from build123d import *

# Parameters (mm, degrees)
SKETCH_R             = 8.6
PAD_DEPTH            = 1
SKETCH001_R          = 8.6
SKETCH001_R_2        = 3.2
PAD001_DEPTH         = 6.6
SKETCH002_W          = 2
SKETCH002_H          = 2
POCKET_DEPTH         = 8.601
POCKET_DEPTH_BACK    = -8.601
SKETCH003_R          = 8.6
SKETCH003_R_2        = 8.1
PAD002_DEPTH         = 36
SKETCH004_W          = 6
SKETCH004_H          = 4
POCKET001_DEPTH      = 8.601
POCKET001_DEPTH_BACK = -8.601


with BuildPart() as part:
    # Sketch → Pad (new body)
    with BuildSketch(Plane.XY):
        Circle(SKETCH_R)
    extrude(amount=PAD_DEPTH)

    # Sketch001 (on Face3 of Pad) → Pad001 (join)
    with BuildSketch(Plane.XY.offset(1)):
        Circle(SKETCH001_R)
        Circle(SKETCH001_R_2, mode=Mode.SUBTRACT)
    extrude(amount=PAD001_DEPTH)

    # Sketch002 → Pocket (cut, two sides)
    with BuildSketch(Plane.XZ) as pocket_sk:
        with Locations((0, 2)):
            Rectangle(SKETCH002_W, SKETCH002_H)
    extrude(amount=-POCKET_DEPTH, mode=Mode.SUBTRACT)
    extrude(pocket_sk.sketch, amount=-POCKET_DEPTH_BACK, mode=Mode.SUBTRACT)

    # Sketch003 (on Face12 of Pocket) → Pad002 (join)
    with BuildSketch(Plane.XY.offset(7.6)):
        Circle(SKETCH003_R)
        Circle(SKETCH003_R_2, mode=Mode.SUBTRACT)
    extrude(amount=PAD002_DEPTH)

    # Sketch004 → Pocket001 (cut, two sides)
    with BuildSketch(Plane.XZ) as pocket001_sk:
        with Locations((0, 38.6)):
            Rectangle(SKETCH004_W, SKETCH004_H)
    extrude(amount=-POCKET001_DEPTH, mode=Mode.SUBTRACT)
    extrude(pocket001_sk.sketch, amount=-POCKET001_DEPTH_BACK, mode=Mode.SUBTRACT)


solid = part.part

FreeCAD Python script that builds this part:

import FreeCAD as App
import Part
import Sketcher
from FreeCAD import Vector
Q = App.Units.Quantity


def add_polygon(sketch, points):
    """Adds a closed chain of lines whose ends are joined by coincident constraints."""
    first, n = sketch.GeometryCount, len(points)
    for a, b in zip(points, points[1:] + points[:1]):
        sketch.addGeometry(Part.LineSegment(App.Vector(*a, 0), App.Vector(*b, 0)), False)
    for i in range(n):
        sketch.addConstraint(Sketcher.Constraint("Coincident", first + i, 2, first + (i + 1) % n, 1))

doc = App.newDocument("Part")
body = doc.addObject("PartDesign::Body", "Body")

# Sketch on XY plane
sketch1 = doc.addObject("Sketcher::SketchObject", "Sketch")
body.addObject(sketch1)
sketch1.AttachmentSupport = (doc.XY_Plane, [""])
sketch1.MapMode = "FlatFace"
sketch1.addGeometry(Part.Circle(Vector(0, 0, 0), Vector(0, 0, 1), 9), False)
sketch1.addConstraint([
    Sketcher.Constraint("Coincident", 0, 3, -1, 1),
    Sketcher.Constraint("Diameter", 0, Q("17.2 mm")),
])
pad1 = doc.addObject("PartDesign::Pad", "Pad")
body.addObject(pad1)
pad1.Profile = sketch1
pad1.Length = 1

# Sketch on XY plane
sketch2 = doc.addObject("Sketcher::SketchObject", "Sketch001")
body.addObject(sketch2)
sketch2.AttachmentSupport = (doc.XY_Plane, [""])
sketch2.MapMode = "FlatFace"
sketch2.AttachmentOffset = App.Placement(Vector(0, 0, 1), App.Rotation())
sketch2.addGeometry([
    Part.Circle(Vector(0, 0, 0), Vector(0, 0, 1), 8.6),
    Part.Circle(Vector(0, 0, 0), Vector(0, 0, 1), 3.2),
], False)
sketch2.addConstraint([
    Sketcher.Constraint("Coincident", 0, 3, -1, 1),
    Sketcher.Constraint("Coincident", 1, 3, -1, 1),
    Sketcher.Constraint("Diameter", 0, Q("17.2 mm")),
    Sketcher.Constraint("Diameter", 1, Q("6.4 mm")),
])
pad2 = doc.addObject("PartDesign::Pad", "Pad001")
body.addObject(pad2)
pad2.Profile = sketch2
pad2.Length = 6.6

# Sketch on XZ plane
sketch3 = doc.addObject("Sketcher::SketchObject", "Sketch002")
body.addObject(sketch3)
sketch3.AttachmentSupport = (doc.XZ_Plane, [""])
sketch3.MapMode = "FlatFace"
add_polygon(sketch3, [(-1, 3), (-1, 1), (1, 1), (1, 3)])  # lines 0-3
sketch3.addConstraint([
    Sketcher.Constraint("Vertical", 0),
    Sketcher.Constraint("Horizontal", 1),
    Sketcher.Constraint("Vertical", 2),
    Sketcher.Constraint("Horizontal", 3),
    Sketcher.Constraint("Equal", 3, 0),
    Sketcher.Constraint("DistanceX", 1, 1, 1, 2, Q("2 mm")),
    Sketcher.Constraint("DistanceX", 0, 2, -1, 1, Q("1 mm")),
    Sketcher.Constraint("DistanceY", -1, 1, 0, 2, Q("1 mm")),
])
pocket1 = doc.addObject("PartDesign::Pocket", "Pocket")
body.addObject(pocket1)
pocket1.Profile = sketch3
pocket1.Type = "ThroughAll"
pocket1.Midplane = True

# Sketch on XY plane
sketch4 = doc.addObject("Sketcher::SketchObject", "Sketch003")
body.addObject(sketch4)
sketch4.AttachmentSupport = (doc.XY_Plane, [""])
sketch4.MapMode = "FlatFace"
sketch4.AttachmentOffset = App.Placement(Vector(0, 0, 7.6), App.Rotation())
sketch4.addGeometry([
    Part.Circle(Vector(0, 0, 0), Vector(0, 0, 1), 9),
    Part.Circle(Vector(0, 0, 0), Vector(0, 0, 1), 8),
], False)
sketch4.addConstraint([
    Sketcher.Constraint("Coincident", 0, 3, -1, 1),
    Sketcher.Constraint("Coincident", 1, 3, -1, 1),
    Sketcher.Constraint("Diameter", 0, Q("17.2 mm")),
    Sketcher.Constraint("Diameter", 1, Q("16.2 mm")),
])
pad3 = doc.addObject("PartDesign::Pad", "Pad002")
body.addObject(pad3)
pad3.Profile = sketch4
pad3.Length = 36

# Sketch on XZ plane
sketch5 = doc.addObject("Sketcher::SketchObject", "Sketch004")
body.addObject(sketch5)
sketch5.AttachmentSupport = (doc.XZ_Plane, [""])
sketch5.MapMode = "FlatFace"
add_polygon(sketch5, [(-3, 40.6), (-3, 36.6), (3, 36.6), (3, 40.6)])  # lines 0-3
sketch5.addConstraint([
    Sketcher.Constraint("Vertical", 0),
    Sketcher.Constraint("Horizontal", 1),
    Sketcher.Constraint("Vertical", 2),
    Sketcher.Constraint("Horizontal", 3),
    Sketcher.Constraint("DistanceX", 1, 1, 1, 2, Q("6 mm")),
    Sketcher.Constraint("DistanceY", 0, 2, 0, 1, Q("4 mm")),
    Sketcher.Constraint("DistanceX", 0, 2, -1, 1, Q("3 mm")),
    Sketcher.Constraint("DistanceY", -1, 1, 0, 2, Q("36.6 mm")),
])
pocket2 = doc.addObject("PartDesign::Pocket", "Pocket001")
body.addObject(pocket2)
pocket2.Profile = sketch5
pocket2.Type = "ThroughAll"
pocket2.Midplane = True

doc.recompute()
